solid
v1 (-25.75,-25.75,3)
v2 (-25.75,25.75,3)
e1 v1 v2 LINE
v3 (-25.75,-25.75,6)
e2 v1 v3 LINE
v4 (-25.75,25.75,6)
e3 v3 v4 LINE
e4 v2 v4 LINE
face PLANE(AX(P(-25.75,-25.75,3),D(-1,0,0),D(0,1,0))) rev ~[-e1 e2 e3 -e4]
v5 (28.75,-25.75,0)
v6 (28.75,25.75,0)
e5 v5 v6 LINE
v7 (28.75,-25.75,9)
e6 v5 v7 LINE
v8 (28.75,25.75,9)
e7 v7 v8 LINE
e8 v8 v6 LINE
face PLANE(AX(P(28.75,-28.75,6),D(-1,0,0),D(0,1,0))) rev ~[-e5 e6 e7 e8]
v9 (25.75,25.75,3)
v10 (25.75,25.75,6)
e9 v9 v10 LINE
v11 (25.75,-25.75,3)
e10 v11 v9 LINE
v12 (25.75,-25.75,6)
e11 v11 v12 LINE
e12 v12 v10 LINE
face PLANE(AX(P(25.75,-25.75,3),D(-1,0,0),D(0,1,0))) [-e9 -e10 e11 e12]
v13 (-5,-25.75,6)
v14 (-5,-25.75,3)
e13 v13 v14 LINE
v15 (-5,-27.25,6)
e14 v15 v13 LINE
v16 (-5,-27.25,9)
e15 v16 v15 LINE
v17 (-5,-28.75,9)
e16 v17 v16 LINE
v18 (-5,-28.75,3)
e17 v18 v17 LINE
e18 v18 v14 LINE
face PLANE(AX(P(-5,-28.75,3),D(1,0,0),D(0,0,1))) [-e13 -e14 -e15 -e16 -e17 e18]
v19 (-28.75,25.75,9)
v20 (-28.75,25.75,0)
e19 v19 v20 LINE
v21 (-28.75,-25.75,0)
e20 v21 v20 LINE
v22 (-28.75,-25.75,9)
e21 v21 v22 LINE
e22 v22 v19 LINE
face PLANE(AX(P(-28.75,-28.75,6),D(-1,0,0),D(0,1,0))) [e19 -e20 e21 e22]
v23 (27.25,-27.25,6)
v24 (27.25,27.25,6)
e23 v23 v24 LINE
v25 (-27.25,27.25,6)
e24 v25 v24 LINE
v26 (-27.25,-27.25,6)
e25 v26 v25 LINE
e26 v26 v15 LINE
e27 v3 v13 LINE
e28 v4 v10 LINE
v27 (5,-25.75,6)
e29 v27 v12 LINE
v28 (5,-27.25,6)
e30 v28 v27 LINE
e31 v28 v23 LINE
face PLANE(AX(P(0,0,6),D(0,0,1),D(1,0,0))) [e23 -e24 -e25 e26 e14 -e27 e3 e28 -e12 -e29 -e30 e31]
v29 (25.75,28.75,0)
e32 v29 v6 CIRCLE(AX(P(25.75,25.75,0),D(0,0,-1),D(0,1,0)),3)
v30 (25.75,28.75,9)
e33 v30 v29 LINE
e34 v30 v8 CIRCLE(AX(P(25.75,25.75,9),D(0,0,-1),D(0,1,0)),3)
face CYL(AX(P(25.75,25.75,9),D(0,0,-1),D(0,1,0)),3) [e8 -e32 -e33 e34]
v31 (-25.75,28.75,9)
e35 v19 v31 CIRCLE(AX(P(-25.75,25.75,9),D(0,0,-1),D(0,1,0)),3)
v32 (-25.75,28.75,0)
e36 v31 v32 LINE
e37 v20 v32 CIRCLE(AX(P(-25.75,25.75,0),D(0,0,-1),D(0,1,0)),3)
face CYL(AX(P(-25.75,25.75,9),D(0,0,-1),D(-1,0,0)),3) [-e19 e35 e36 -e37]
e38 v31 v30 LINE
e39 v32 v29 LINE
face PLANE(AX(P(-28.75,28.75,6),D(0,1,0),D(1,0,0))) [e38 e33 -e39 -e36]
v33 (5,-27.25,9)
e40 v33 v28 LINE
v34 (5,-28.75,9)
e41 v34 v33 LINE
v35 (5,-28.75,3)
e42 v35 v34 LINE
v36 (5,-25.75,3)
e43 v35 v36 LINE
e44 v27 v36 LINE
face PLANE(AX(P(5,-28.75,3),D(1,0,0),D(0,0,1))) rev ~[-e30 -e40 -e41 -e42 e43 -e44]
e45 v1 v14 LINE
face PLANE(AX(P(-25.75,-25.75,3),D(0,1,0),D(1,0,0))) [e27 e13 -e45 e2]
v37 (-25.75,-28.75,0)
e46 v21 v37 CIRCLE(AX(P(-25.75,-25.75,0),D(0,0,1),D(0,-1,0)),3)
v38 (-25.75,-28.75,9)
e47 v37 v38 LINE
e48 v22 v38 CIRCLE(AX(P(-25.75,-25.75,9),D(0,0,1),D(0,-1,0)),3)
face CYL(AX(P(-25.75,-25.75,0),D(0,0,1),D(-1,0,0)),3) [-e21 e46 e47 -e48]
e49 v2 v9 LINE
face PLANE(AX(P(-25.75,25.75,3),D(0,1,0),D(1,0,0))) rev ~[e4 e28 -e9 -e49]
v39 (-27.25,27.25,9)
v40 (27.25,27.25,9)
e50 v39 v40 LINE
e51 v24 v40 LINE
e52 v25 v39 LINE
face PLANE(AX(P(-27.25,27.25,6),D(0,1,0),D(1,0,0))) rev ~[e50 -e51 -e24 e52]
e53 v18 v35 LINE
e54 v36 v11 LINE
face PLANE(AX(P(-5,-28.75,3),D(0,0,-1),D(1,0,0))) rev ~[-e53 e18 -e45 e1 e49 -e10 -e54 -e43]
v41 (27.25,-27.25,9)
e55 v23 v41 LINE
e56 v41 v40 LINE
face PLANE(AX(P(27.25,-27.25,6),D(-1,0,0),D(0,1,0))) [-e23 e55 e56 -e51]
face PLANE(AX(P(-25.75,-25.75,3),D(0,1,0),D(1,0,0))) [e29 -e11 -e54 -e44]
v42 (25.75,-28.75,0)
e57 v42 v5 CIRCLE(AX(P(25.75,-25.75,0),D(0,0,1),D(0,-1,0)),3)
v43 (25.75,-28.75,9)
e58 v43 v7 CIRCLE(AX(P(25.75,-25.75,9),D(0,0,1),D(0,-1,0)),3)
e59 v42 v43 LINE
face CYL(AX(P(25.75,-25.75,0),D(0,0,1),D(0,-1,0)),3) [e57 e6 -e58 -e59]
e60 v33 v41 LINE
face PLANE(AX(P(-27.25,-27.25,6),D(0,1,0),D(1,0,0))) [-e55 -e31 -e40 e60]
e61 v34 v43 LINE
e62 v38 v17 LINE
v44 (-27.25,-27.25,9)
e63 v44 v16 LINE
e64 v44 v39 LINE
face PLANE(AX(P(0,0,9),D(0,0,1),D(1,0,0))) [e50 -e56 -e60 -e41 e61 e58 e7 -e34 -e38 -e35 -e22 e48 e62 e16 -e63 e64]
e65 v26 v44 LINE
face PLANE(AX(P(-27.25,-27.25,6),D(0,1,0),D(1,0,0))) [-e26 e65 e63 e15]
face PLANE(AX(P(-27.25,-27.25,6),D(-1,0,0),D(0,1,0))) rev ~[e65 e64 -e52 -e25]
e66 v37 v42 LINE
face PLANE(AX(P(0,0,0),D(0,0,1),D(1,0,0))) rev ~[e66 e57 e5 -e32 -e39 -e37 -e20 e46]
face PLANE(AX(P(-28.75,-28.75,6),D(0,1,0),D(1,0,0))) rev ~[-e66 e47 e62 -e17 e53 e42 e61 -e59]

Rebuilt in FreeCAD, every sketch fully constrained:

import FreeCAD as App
import Part
import Sketcher

V = App.Vector
Q = App.Units.Quantity


def edges_at(feature, points):
    """Names of the edges that pass closest to the given points."""
    edges = feature.Shape.Edges
    near = lambda p: min(range(len(edges)), key=lambda i: edges[i].distToShape(Part.Vertex(*p))[0])
    return sorted({f"Edge{near(p) + 1}" for p in points})

doc = App.newDocument("Part")
params = doc.addObject("Spreadsheet::Sheet", "Params")
for row, (alias, value) in enumerate([
    ("sketch1_width", "57.5 mm"),
    ("pad1_length", "3 mm"),
    ("sketch2_width", "57.5 mm"),
    ("sketch2_width2", "51.5 mm"),
    ("pad2_length", "3 mm"),
    ("sketch3_width", "57.5 mm"),
    ("sketch3_width2", "54.5 mm"),
    ("pad3_length", "3 mm"),
    ("sketch4_width", "10 mm"),
    ("sketch4_height", "6 mm"),
    ("pocket1_length", "5 mm"),
    ("fillet_radius", "3 mm"),
], start=1):
    params.set(f"A{row}", alias)
    params.set(f"B{row}", "=" + value)
    params.setAlias(f"B{row}", alias)

body = doc.addObject("PartDesign::Body", "Body")

# Sketch on XY plane
sketch1 = body.newObject("Sketcher::SketchObject", "Sketch")
sketch1.AttachmentSupport = (doc.getObject("XY_Plane"), [""])
sketch1.MapMode = "FlatFace"
sketch1.addGeometry([
    Part.LineSegment(V(-29, 29, 0), V(-29, -29, 0)),
    Part.LineSegment(V(-29, -29, 0), V(29, -29, 0)),
    Part.LineSegment(V(29, -29, 0), V(29, 29, 0)),
    Part.LineSegment(V(29, 29, 0), V(-29, 29, 0)),
], False)
sketch1.addConstraint([
    Sketcher.Constraint("Coincident", 0, 2, 1, 1),
    Sketcher.Constraint("Coincident", 1, 2, 2, 1),
    Sketcher.Constraint("Coincident", 2, 2, 3, 1),
    Sketcher.Constraint("Coincident", 3, 2, 0, 1),
    Sketcher.Constraint("Vertical", 0),
    Sketcher.Constraint("Horizontal", 1),
    Sketcher.Constraint("Vertical", 2),
    Sketcher.Constraint("Horizontal", 3),
    Sketcher.Constraint("Symmetric", 0, 2, 2, 2, -1, 1),
    Sketcher.Constraint("Equal", 3, 0),
    Sketcher.Constraint("DistanceX", 1, 1, 1, 2, Q("57.5 mm")),
])
sketch1.setExpression("Constraints[10]", "Params.sketch1_width")
pad1 = body.newObject("PartDesign::Pad", "Pad")
pad1.Profile = sketch1
pad1.setExpression("Length", "Params.pad1_length")

# Sketch on XY plane
sketch2 = body.newObject("Sketcher::SketchObject", "Sketch001")
sketch2.AttachmentSupport = (doc.getObject("XY_Plane"), [""])
sketch2.MapMode = "FlatFace"
sketch2.AttachmentOffset = App.Placement(V(0, 0, 3), App.Rotation())
sketch2.addGeometry([
    Part.LineSegment(V(-29, 29, 0), V(-29, -29, 0)),  # 0
    Part.LineSegment(V(-29, -29, 0), V(29, -29, 0)),  # 1
    Part.LineSegment(V(29, -29, 0), V(29, 29, 0)),  # 2
    Part.LineSegment(V(29, 29, 0), V(-29, 29, 0)),  # 3
    Part.LineSegment(V(26, -26, 0), V(-26, -26, 0)),  # 4
    Part.LineSegment(V(-26, -26, 0), V(-26, 26, 0)),  # 5
    Part.LineSegment(V(-26, 26, 0), V(26, 26, 0)),  # 6
    Part.LineSegment(V(26, 26, 0), V(26, -26, 0)),  # 7
], False)
sketch2.addConstraint([
    Sketcher.Constraint("Coincident", 0, 2, 1, 1),
    Sketcher.Constraint("Coincident", 1, 2, 2, 1),
    Sketcher.Constraint("Coincident", 2, 2, 3, 1),
    Sketcher.Constraint("Coincident", 3, 2, 0, 1),
    Sketcher.Constraint("Coincident", 4, 2, 5, 1),
    Sketcher.Constraint("Coincident", 5, 2, 6, 1),
    Sketcher.Constraint("Coincident", 6, 2, 7, 1),
    Sketcher.Constraint("Coincident", 7, 2, 4, 1),
    Sketcher.Constraint("Vertical", 0),
    Sketcher.Constraint("Horizontal", 1),
    Sketcher.Constraint("Vertical", 2),
    Sketcher.Constraint("Horizontal", 3),
    Sketcher.Constraint("Horizontal", 4),
    Sketcher.Constraint("Vertical", 5),
    Sketcher.Constraint("Horizontal", 6),
    Sketcher.Constraint("Vertical", 7),
    Sketcher.Constraint("Symmetric", 0, 2, 2, 2, -1, 1),
    Sketcher.Constraint("Symmetric", 4, 2, 6, 2, -1, 1),
    Sketcher.Constraint("Equal", 3, 0),
    Sketcher.Constraint("Equal", 6, 5),
    Sketcher.Constraint("DistanceX", 1, 1, 1, 2, Q("57.5 mm")),
    Sketcher.Constraint("DistanceX", 4, 2, 4, 1, Q("51.5 mm")),
])
sketch2.setExpression("Constraints[20]", "Params.sketch2_width")
sketch2.setExpression("Constraints[21]", "Params.sketch2_width2")
pad2 = body.newObject("PartDesign::Pad", "Pad001")
pad2.Profile = sketch2
pad2.setExpression("Length", "Params.pad2_length")

# Sketch on XY plane
sketch3 = body.newObject("Sketcher::SketchObject", "Sketch002")
sketch3.AttachmentSupport = (doc.getObject("XY_Plane"), [""])
sketch3.MapMode = "FlatFace"
sketch3.AttachmentOffset = App.Placement(V(0, 0, 6), App.Rotation())
sketch3.addGeometry([
    Part.LineSegment(V(-29, 29, 0), V(-29, -29, 0)),  # 0
    Part.LineSegment(V(-29, -29, 0), V(29, -29, 0)),  # 1
    Part.LineSegment(V(29, -29, 0), V(29, 29, 0)),  # 2
    Part.LineSegment(V(29, 29, 0), V(-29, 29, 0)),  # 3
    Part.LineSegment(V(27, -27, 0), V(-27, -27, 0)),  # 4
    Part.LineSegment(V(-27, -27, 0), V(-27, 27, 0)),  # 5
    Part.LineSegment(V(-27, 27, 0), V(27, 27, 0)),  # 6
    Part.LineSegment(V(27, 27, 0), V(27, -27, 0)),  # 7
], False)
sketch3.addConstraint([
    Sketcher.Constraint("Coincident", 0, 2, 1, 1),
    Sketcher.Constraint("Coincident", 1, 2, 2, 1),
    Sketcher.Constraint("Coincident", 2, 2, 3, 1),
    Sketcher.Constraint("Coincident", 3, 2, 0, 1),
    Sketcher.Constraint("Coincident", 4, 2, 5, 1),
    Sketcher.Constraint("Coincident", 5, 2, 6, 1),
    Sketcher.Constraint("Coincident", 6, 2, 7, 1),
    Sketcher.Constraint("Coincident", 7, 2, 4, 1),
    Sketcher.Constraint("Vertical", 0),
    Sketcher.Constraint("Horizontal", 1),
    Sketcher.Constraint("Vertical", 2),
    Sketcher.Constraint("Horizontal", 3),
    Sketcher.Constraint("Horizontal", 4),
    Sketcher.Constraint("Vertical", 5),
    Sketcher.Constraint("Horizontal", 6),
    Sketcher.Constraint("Vertical", 7),
    Sketcher.Constraint("Symmetric", 0, 2, 2, 2, -1, 1),
    Sketcher.Constraint("Symmetric", 4, 2, 6, 2, -1, 1),
    Sketcher.Constraint("Equal", 3, 0),
    Sketcher.Constraint("Equal", 6, 5),
    Sketcher.Constraint("DistanceX", 1, 1, 1, 2, Q("57.5 mm")),
    Sketcher.Constraint("DistanceX", 4, 2, 4, 1, Q("54.5 mm")),
])
sketch3.setExpression("Constraints[20]", "Params.sketch3_width")
sketch3.setExpression("Constraints[21]", "Params.sketch3_width2")
pad3 = body.newObject("PartDesign::Pad", "Pad002")
pad3.Profile = sketch3
pad3.setExpression("Length", "Params.pad3_length")

# Sketch on XZ plane
sketch4 = body.newObject("Sketcher::SketchObject", "Sketch003")
sketch4.AttachmentSupport = (doc.getObject("XZ_Plane"), [""])
sketch4.MapMode = "FlatFace"
sketch4.AttachmentOffset = App.Placement(V(0, 0, 28.75), App.Rotation())
sketch4.addGeometry([
    Part.LineSegment(V(-5, 9, 0), V(-5, 3, 0)),
    Part.LineSegment(V(-5, 3, 0), V(5, 3, 0)),
    Part.LineSegment(V(5, 3, 0), V(5, 9, 0)),
    Part.LineSegment(V(5, 9, 0), V(-5, 9, 0)),
], False)
sketch4.addConstraint([
    Sketcher.Constraint("Coincident", 0, 2, 1, 1),
    Sketcher.Constraint("Coincident", 1, 2, 2, 1),
    Sketcher.Constraint("Coincident", 2, 2, 3, 1),
    Sketcher.Constraint("Coincident", 3, 2, 0, 1),
    Sketcher.Constraint("Vertical", 0),
    Sketcher.Constraint("Horizontal", 1),
    Sketcher.Constraint("Vertical", 2),
    Sketcher.Constraint("Horizontal", 3),
    Sketcher.Constraint("DistanceX", 1, 1, 1, 2, Q("10 mm")),
    Sketcher.Constraint("DistanceY", 0, 2, 0, 1, Q("6 mm")),
    Sketcher.Constraint("DistanceX", 0, 2, -1, 1, Q("5 mm")),
    Sketcher.Constraint("DistanceY", -1, 1, 0, 2, Q("3 mm")),
])
sketch4.setExpression("Constraints[8]", "Params.sketch4_width")
sketch4.setExpression("Constraints[9]", "Params.sketch4_height")
pocket1 = body.newObject("PartDesign::Pocket", "Pocket")
pocket1.Profile = sketch4
pocket1.setExpression("Length", "Params.pocket1_length")
doc.recompute()

fillet = body.newObject("PartDesign::Fillet", "Fillet")
fillet.Base = (pocket1, edges_at(pocket1, [
    (-28.75, -28.75, 4.5),
    (-28.75, -28.75, 4.5),
    (-28.75, -28.75, 4.5),
    (-28.75, 28.75, 4.5),
    (-28.75, 28.75, 4.5),
    (-28.75, 28.75, 4.5),
    (28.75, -28.75, 4.5),
    (28.75, -28.75, 4.5),
    (28.75, -28.75, 4.5),
    (28.75, 28.75, 4.5),
    (28.75, 28.75, 4.5),
    (28.75, 28.75, 4.5),
]))
fillet.setExpression("Radius", "Params.fillet_radius")

doc.recompute()
